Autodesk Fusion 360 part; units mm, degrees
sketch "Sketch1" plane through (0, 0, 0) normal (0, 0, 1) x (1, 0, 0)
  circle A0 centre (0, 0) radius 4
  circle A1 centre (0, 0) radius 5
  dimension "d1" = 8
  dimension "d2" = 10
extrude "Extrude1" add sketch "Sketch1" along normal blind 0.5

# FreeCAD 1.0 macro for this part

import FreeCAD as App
import Part
import Sketcher

V = App.Vector
Q = App.Units.Quantity

doc = App.newDocument("Part")
body = doc.addObject("PartDesign::Body", "Body")

sketch1 = doc.addObject("Sketcher::SketchObject", "Sketch")
body.addObject(sketch1)
sketch1.AttachmentSupport = (doc.XY_Plane, [""])
sketch1.MapMode = "FlatFace"
sketch1.addGeometry(Part.Circle(V(0, 0, 0), V(0, 0, 1), 5), False)
sketch1.addGeometry(Part.Circle(V(0, 0, 0), V(0, 0, 1), 4), False)
sketch1.addConstraint(Sketcher.Constraint("Coincident", 0, 3, -1, 1))
sketch1.addConstraint(Sketcher.Constraint("Coincident", 1, 3, -1, 1))
sketch1.addConstraint(Sketcher.Constraint("Diameter", 0, Q("10 mm")))
sketch1.addConstraint(Sketcher.Constraint("Diameter", 1, Q("8 mm")))
pad1 = doc.addObject("PartDesign::Pad", "Pad")
body.addObject(pad1)
pad1.Profile = sketch1
pad1.Length = 0.5

doc.recompute()
